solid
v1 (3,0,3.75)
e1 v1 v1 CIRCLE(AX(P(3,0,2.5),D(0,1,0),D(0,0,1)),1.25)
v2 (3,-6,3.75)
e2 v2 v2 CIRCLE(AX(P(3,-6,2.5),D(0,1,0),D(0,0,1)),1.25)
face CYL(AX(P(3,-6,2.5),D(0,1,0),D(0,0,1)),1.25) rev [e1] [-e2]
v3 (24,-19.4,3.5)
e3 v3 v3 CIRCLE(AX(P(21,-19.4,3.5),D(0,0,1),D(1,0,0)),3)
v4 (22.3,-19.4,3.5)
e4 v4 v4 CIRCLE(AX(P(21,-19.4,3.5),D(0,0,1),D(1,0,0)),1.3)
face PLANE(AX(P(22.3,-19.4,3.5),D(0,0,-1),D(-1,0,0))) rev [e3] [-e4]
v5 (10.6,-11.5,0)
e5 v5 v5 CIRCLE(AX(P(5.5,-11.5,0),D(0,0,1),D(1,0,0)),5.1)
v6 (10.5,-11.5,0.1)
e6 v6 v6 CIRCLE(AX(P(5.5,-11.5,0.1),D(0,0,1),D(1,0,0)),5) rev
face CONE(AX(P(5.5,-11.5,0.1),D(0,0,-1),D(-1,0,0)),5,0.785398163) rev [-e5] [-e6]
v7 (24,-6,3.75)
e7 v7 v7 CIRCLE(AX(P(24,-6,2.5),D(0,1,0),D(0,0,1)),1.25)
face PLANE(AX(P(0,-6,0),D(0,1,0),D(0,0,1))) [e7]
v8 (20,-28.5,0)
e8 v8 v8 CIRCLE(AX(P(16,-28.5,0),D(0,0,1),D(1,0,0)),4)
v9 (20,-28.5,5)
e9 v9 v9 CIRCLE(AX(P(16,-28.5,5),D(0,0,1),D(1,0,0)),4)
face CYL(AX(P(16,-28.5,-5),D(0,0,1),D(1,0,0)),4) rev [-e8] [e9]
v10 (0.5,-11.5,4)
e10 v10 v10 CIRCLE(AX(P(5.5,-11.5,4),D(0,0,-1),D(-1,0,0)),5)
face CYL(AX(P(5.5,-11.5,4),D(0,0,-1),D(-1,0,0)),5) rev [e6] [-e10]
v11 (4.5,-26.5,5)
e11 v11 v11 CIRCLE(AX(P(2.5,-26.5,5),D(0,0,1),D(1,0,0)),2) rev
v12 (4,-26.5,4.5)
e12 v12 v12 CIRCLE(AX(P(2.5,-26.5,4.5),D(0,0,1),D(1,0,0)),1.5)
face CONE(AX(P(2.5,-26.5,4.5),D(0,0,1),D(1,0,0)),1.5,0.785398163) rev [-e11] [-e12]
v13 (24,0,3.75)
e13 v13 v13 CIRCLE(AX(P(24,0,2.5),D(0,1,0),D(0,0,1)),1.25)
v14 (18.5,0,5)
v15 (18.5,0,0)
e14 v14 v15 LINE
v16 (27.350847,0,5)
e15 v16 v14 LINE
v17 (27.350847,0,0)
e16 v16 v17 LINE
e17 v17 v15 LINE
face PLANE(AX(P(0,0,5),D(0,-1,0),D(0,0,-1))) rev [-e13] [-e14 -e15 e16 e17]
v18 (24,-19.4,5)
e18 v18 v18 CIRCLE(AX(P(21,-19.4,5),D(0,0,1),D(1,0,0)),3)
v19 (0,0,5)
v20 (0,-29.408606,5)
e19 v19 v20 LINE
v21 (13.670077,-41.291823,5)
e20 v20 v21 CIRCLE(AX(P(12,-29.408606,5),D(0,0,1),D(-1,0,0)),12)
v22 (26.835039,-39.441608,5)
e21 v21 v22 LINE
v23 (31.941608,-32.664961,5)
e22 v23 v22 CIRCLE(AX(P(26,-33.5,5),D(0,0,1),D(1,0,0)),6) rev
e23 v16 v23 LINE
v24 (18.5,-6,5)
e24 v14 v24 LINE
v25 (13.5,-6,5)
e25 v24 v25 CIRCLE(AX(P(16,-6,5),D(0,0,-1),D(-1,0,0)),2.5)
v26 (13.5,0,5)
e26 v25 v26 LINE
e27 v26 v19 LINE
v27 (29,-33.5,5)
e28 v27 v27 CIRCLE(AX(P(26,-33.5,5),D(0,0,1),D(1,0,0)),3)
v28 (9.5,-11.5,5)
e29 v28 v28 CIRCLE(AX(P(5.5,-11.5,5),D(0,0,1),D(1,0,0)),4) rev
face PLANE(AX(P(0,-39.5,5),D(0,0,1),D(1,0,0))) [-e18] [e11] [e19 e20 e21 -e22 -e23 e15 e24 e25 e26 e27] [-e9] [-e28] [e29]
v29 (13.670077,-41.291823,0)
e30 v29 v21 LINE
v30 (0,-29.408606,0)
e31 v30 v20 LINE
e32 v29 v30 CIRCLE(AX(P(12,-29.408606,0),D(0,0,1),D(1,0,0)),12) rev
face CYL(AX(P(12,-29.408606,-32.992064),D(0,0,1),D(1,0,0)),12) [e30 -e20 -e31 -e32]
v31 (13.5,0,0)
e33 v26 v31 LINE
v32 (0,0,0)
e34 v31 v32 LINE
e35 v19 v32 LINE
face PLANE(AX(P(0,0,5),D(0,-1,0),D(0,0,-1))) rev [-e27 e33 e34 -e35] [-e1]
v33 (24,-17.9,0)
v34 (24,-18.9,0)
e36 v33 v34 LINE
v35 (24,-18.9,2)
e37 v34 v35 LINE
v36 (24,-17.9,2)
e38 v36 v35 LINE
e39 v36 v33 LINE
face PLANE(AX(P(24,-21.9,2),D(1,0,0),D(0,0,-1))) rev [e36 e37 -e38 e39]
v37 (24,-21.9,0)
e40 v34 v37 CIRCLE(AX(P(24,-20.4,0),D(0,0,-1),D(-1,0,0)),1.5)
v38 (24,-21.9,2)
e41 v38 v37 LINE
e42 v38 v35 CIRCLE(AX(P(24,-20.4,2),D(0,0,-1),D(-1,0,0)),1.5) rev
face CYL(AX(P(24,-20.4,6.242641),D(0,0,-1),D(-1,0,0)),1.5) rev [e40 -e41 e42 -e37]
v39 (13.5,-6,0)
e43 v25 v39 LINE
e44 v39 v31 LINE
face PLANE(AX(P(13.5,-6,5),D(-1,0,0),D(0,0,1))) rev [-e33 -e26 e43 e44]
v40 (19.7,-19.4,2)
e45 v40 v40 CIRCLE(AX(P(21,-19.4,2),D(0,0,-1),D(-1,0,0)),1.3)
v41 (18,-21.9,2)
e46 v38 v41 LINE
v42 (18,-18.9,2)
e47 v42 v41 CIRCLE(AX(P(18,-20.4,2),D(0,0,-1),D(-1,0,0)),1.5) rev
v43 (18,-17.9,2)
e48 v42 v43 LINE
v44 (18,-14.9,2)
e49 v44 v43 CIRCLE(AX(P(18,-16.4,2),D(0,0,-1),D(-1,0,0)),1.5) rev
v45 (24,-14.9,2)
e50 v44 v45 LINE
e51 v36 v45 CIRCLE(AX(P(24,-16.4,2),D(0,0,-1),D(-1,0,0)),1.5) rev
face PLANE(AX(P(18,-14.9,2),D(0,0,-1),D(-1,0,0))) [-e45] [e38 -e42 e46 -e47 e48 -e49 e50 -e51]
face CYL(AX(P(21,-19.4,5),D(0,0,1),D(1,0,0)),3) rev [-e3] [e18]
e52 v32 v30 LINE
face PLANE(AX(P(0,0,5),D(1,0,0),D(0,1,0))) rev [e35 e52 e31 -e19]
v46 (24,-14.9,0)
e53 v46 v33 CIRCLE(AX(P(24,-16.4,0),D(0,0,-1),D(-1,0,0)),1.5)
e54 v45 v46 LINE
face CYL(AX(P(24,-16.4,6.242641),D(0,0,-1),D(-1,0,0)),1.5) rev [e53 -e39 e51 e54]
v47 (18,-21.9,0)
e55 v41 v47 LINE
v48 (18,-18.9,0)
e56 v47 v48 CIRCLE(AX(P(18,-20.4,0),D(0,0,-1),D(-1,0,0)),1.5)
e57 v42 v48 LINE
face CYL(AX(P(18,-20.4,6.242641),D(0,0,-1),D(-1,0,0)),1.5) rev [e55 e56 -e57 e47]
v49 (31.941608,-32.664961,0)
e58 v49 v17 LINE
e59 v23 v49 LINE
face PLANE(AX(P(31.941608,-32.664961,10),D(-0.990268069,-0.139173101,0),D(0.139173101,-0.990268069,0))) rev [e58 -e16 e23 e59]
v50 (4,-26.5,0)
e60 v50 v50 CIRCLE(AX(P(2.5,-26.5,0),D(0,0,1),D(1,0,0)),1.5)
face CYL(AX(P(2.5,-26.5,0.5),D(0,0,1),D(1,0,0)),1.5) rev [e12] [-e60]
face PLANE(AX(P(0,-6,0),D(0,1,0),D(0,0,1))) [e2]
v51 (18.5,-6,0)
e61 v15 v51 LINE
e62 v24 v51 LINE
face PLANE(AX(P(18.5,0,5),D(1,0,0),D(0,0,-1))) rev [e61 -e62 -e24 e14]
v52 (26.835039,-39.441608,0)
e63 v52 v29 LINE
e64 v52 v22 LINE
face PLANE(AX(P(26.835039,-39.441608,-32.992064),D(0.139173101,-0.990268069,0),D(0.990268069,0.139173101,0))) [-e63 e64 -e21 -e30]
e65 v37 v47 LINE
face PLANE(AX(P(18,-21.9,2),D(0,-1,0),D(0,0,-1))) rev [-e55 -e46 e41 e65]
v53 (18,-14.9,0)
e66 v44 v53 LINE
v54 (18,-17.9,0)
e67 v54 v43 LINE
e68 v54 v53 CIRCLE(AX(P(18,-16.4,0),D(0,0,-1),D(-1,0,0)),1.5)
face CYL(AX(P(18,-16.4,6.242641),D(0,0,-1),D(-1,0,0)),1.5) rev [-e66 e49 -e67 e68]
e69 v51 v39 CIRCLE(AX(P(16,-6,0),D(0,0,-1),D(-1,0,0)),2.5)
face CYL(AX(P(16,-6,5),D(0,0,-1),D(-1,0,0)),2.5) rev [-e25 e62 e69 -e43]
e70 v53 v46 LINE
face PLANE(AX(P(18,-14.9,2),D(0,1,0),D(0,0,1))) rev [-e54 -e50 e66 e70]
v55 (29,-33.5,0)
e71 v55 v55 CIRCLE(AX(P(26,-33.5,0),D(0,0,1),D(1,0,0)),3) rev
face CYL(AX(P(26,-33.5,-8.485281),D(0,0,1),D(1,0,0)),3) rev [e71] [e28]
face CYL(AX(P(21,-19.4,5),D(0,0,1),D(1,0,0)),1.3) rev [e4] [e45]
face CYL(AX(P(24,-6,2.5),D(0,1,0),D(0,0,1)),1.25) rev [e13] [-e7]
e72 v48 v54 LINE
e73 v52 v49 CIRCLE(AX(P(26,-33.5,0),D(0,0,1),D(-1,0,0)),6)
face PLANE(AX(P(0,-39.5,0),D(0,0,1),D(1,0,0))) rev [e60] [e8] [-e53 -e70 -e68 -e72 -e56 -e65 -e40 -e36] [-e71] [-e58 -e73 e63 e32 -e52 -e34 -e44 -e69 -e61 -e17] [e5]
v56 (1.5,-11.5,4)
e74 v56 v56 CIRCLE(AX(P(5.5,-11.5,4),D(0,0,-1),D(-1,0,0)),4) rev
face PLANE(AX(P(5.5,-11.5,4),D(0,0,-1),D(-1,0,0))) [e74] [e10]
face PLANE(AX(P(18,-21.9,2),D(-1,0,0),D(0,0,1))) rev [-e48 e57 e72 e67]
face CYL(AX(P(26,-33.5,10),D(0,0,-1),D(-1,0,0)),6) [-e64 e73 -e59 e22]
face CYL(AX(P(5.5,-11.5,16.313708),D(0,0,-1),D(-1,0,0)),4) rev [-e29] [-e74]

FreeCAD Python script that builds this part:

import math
import FreeCAD as App
import Part
import Sketcher
from FreeCAD import Vector
Q = App.Units.Quantity


def edges_at(feature, points):
    """Names of the edges that pass closest to the given points."""
    edges = feature.Shape.Edges
    near = lambda p: min(range(len(edges)), key=lambda i: edges[i].distToShape(Part.Vertex(*p))[0])
    return sorted({f"Edge{near(p) + 1}" for p in points})

doc = App.newDocument("Part")
params = doc.addObject("Spreadsheet::Sheet", "Params")
for row, (alias, value) in enumerate([
    ("sketch1_width", "34 mm"),
    ("sketch1_height", "39.5 mm"),
    ("pad1_length", "5 mm"),
    ("fillet_radius", "12 mm"),
    ("sketch2_diameter", "6 mm"),
    ("pocket1_length", "5 mm"),
    ("sketch3_diameter", "8 mm"),
    ("pocket2_length", "5 mm"),
    ("sketch4_diameter", "10 mm"),
    ("pocket3_length", "4 mm"),
    ("sketch5_radius", "6 mm"),
    ("sketch5_width", "8 mm"),
    ("sketch5_height", "39.5 mm"),
    ("pocket4_length", "10 mm"),
    ("sketch6_radius", "6 mm"),
    ("sketch6_radius2", "12 mm"),
    ("pad2_length", "5 mm"),
    ("sketch7_diameter", "3 mm"),
    ("pocket5_length", "4.5 mm"),
    ("sketch8_diameter", "1 mm"),
    ("sketch9_height", "4 mm"),
    ("sketch9_radius", "2.25 mm"),
    ("pocket7_length", "0.5 mm"),
    ("sketch10_diameter", "8 mm"),
    ("pocket8_length", "10 mm"),
    ("sketch11_width", "6 mm"),
    ("sketch11_height", "7 mm"),
    ("pocket9_length", "2 mm"),
    ("sketch12_diameter", "2.6 mm"),
    ("hole_diameter", "2.6 mm"),
    ("hole_cbore_diameter", "6 mm"),
    ("hole_cbore_depth", "1.5 mm"),
    ("sketch13_diameter", "3 mm"),
    ("pocket10_length", "2 mm"),
    ("sketch14_radius", "2.5 mm"),
    ("sketch14_height", "6 mm"),
    ("sketch15_diameter", "3 mm"),
    ("pocket12_length", "10 mm"),
    ("chamfer_size", "0.1 mm"),
    ("sketch16_diameter", "3 mm"),
    ("sketch16_height", "4 mm"),
    ("sketch16_radius", "2.25 mm"),
    ("pad3_length", "5 mm"),
    ("chamfer2_size", "0.5 mm"),
    ("sketch17_diameter", "2.5 mm"),
    ("pocket13_length", "6 mm"),
], start=1):
    params.set(f"A{row}", alias)
    params.set(f"B{row}", "=" + value)
    params.setAlias(f"B{row}", alias)

body = doc.addObject("PartDesign::Body", "Body")

# Sketch on XY plane
sketch1 = body.newObject("Sketcher::SketchObject", "Sketch")
sketch1.AttachmentSupport = (doc.getObject("XY_Plane"), [""])
sketch1.MapMode = "FlatFace"
sketch1.addGeometry(Part.LineSegment(Vector(0, 0, 0), Vector(0, -39.5, 0)), False)
sketch1.addGeometry(Part.LineSegment(Vector(0, -39.5, 0), Vector(34, -39.5, 0)), False)
sketch1.addGeometry(Part.LineSegment(Vector(34, -39.5, 0), Vector(34, 0, 0)), False)
sketch1.addGeometry(Part.LineSegment(Vector(34, 0, 0), Vector(0, 0, 0)), False)
sketch1.addConstraint(Sketcher.Constraint("Coincident", 0, 2, 1, 1))
sketch1.addConstraint(Sketcher.Constraint("Coincident", 1, 2, 2, 1))
sketch1.addConstraint(Sketcher.Constraint("Coincident", 2, 2, 3, 1))
sketch1.addConstraint(Sketcher.Constraint("Coincident", 3, 2, 0, 1))
sketch1.addConstraint(Sketcher.Constraint("Vertical", 0))
sketch1.addConstraint(Sketcher.Constraint("Horizontal", 1))
sketch1.addConstraint(Sketcher.Constraint("Vertical", 2))
sketch1.addConstraint(Sketcher.Constraint("Horizontal", 3))
sketch1.addConstraint(Sketcher.Constraint("Coincident", 3, 2, -1, 1))
sketch1.addConstraint(Sketcher.Constraint("DistanceX", 1, 1, 1, 2, Q("34 mm")))
sketch1.addConstraint(Sketcher.Constraint("DistanceY", 0, 2, 0, 1, Q("39.5 mm")))
sketch1.setExpression("Constraints[9]", "Params.sketch1_width")
sketch1.setExpression("Constraints[10]", "Params.sketch1_height")
pad1 = body.newObject("PartDesign::Pad", "Pad")
pad1.Profile = sketch1
pad1.setExpression("Length", "Params.pad1_length")
doc.recompute()

fillet = body.newObject("PartDesign::Fillet", "Fillet")
fillet.Base = (pad1, edges_at(pad1, [(0, -39.5, 2.5)]))
fillet.setExpression("Radius", "Params.fillet_radius")

# Sketch on XY plane
sketch2 = body.newObject("Sketcher::SketchObject", "Sketch001")
sketch2.AttachmentSupport = (doc.getObject("XY_Plane"), [""])
sketch2.MapMode = "FlatFace"
sketch2.AttachmentOffset = App.Placement(Vector(0, 0, 5), App.Rotation())
sketch2.addGeometry(Part.Circle(Vector(26, -33.5, 0), Vector(0, 0, 1), 3), False)
sketch2.addConstraint(Sketcher.Constraint("Diameter", 0, Q("6 mm")))
sketch2.addConstraint(Sketcher.Constraint("DistanceX", -1, 1, 0, 3, Q("26 mm")))
sketch2.addConstraint(Sketcher.Constraint("DistanceY", 0, 3, -1, 1, Q("33.5 mm")))
sketch2.setExpression("Constraints[0]", "Params.sketch2_diameter")
pocket1 = body.newObject("PartDesign::Pocket", "Pocket")
pocket1.Profile = sketch2
pocket1.setExpression("Length", "Params.pocket1_length")

# Sketch on XY plane
sketch3 = body.newObject("Sketcher::SketchObject", "Sketch002")
sketch3.AttachmentSupport = (doc.getObject("XY_Plane"), [""])
sketch3.MapMode = "FlatFace"
sketch3.addGeometry(Part.Circle(Vector(5.5, -11.5, 0), Vector(0, 0, 1), 4), False)
sketch3.addConstraint(Sketcher.Constraint("Diameter", 0, Q("8 mm")))
sketch3.addConstraint(Sketcher.Constraint("DistanceX", -1, 1, 0, 3, Q("5.5 mm")))
sketch3.addConstraint(Sketcher.Constraint("DistanceY", 0, 3, -1, 1, Q("11.5 mm")))
sketch3.setExpression("Constraints[0]", "Params.sketch3_diameter")
pocket2 = body.newObject("PartDesign::Pocket", "Pocket001")
pocket2.Profile = sketch3
pocket2.setExpression("Length", "Params.pocket2_length")
pocket2.Reversed = True

# Sketch on XY plane
sketch4 = body.newObject("Sketcher::SketchObject", "Sketch003")
sketch4.AttachmentSupport = (doc.getObject("XY_Plane"), [""])
sketch4.MapMode = "FlatFace"
sketch4.addGeometry(Part.Circle(Vector(5.5, -11.5, 0), Vector(0, 0, 1), 5), False)
sketch4.addConstraint(Sketcher.Constraint("Diameter", 0, Q("10 mm")))
sketch4.addConstraint(Sketcher.Constraint("DistanceX", -1, 1, 0, 3, Q("5.5 mm")))
sketch4.addConstraint(Sketcher.Constraint("DistanceY", 0, 3, -1, 1, Q("11.5 mm")))
sketch4.setExpression("Constraints[0]", "Params.sketch4_diameter")
pocket3 = body.newObject("PartDesign::Pocket", "Pocket002")
pocket3.Profile = sketch4
pocket3.setExpression("Length", "Params.pocket3_length")
pocket3.Reversed = True

# Sketch on XY plane
sketch5 = body.newObject("Sketcher::SketchObject", "Sketch004")
sketch5.AttachmentSupport = (doc.getObject("XY_Plane"), [""])
sketch5.MapMode = "FlatFace"
sketch5.addGeometry(Part.LineSegment(Vector(34, -39.5, 0), Vector(26, -39.5, 0)), False)
sketch5.addGeometry(Part.ArcOfCircle(Part.Circle(Vector(26, -33.5, 0), Vector(0, 0, 1), 6), math.radians(-90), math.radians(8)), False)
sketch5.addGeometry(Part.LineSegment(Vector(31.941608, -32.664961, 0), Vector(27.350847, 0, 0)), False)
sketch5.addGeometry(Part.LineSegment(Vector(27.350847, 0, 0), Vector(34, 0, 0)), False)
sketch5.addGeometry(Part.LineSegment(Vector(34, 0, 0), Vector(34, -39.5, 0)), False)
sketch5.addConstraint(Sketcher.Constraint("Tangent", 0, 2, 1, 1))
sketch5.addConstraint(Sketcher.Constraint("Tangent", 1, 2, 2, 1))
sketch5.addConstraint(Sketcher.Constraint("Coincident", 2, 2, 3, 1))
sketch5.addConstraint(Sketcher.Constraint("Coincident", 3, 2, 4, 1))
sketch5.addConstraint(Sketcher.Constraint("Coincident", 4, 2, 0, 1))
sketch5.addConstraint(Sketcher.Constraint("Horizontal", 0))
sketch5.addConstraint(Sketcher.Constraint("Horizontal", 3))
sketch5.addConstraint(Sketcher.Constraint("Vertical", 4))
sketch5.addConstraint(Sketcher.Constraint("PointOnObject", 2, 2, -1))
sketch5.addConstraint(Sketcher.Constraint("Radius", 1, Q("6 mm")))
sketch5.addConstraint(Sketcher.Constraint("DistanceX", 0, 2, 0, 1, Q("8 mm")))
sketch5.addConstraint(Sketcher.Constraint("Angle", 2, Q("98 deg")))
sketch5.addConstraint(Sketcher.Constraint("DistanceY", 4, 2, 4, 1, Q("39.5 mm")))
sketch5.addConstraint(Sketcher.Constraint("DistanceX", -1, 1, 1, 3, Q("26 mm")))
sketch5.setExpression("Constraints[9]", "Params.sketch5_radius")
sketch5.setExpression("Constraints[10]", "Params.sketch5_width")
sketch5.setExpression("Constraints[12]", "Params.sketch5_height")
pocket4 = body.newObject("PartDesign::Pocket", "Pocket003")
pocket4.Profile = sketch5
pocket4.setExpression("Length", "Params.pocket4_length")
pocket4.Reversed = True

# Sketch on XY plane
sketch6 = body.newObject("Sketcher::SketchObject", "Sketch005")
sketch6.AttachmentSupport = (doc.getObject("XY_Plane"), [""])
sketch6.MapMode = "FlatFace"
sketch6.addGeometry(Part.LineSegment(Vector(13.670077, -41.291823, 0), Vector(26.835039, -39.441608, 0)), False)
sketch6.addGeometry(Part.ArcOfCircle(Part.Circle(Vector(26, -33.5, 0), Vector(0, 0, 1), 6), math.radians(-82), math.radians(-55)), False)
sketch6.addGeometry(Part.LineSegment(Vector(29.441459, -38.414912, 0), Vector(0, -26.519791, 0)), False)
sketch6.addGeometry(Part.LineSegment(Vector(0, -26.519791, 0), Vector(0, -29.408606, 0)), False)
sketch6.addGeometry(Part.ArcOfCircle(Part.Circle(Vector(12, -29.408606, 0), Vector(0, 0, 1), 12), math.radians(-180), math.radians(-82)), False)
sketch6.addConstraint(Sketcher.Constraint("Tangent", 0, 2, 1, 1))
sketch6.addConstraint(Sketcher.Constraint("Coincident", 1, 2, 2, 1))
sketch6.addConstraint(Sketcher.Constraint("Coincident", 2, 2, 3, 1))
sketch6.addConstraint(Sketcher.Constraint("Tangent", 3, 2, 4, 1))
sketch6.addConstraint(Sketcher.Constraint("Tangent", 4, 2, 0, 1))
sketch6.addConstraint(Sketcher.Constraint("Vertical", 3))
sketch6.addConstraint(Sketcher.Constraint("PointOnObject", 2, 2, -2))
sketch6.addConstraint(Sketcher.Constraint("Radius", 1, Q("6 mm")))
sketch6.addConstraint(Sketcher.Constraint("Radius", 4, Q("12 mm")))
sketch6.addConstraint(Sketcher.Constraint("Angle", 0, Q("8 deg")))
sketch6.addConstraint(Sketcher.Constraint("Angle", 2, Q("158 deg")))
sketch6.addConstraint(Sketcher.Constraint("DistanceX", -1, 1, 1, 3, Q("26 mm")))
sketch6.addConstraint(Sketcher.Constraint("DistanceY", 1, 3, -1, 1, Q("33.5 mm")))
sketch6.addConstraint(Sketcher.Constraint("DistanceY", 3, 2, 3, 1, Q("2.888815 mm")))
sketch6.setExpression("Constraints[7]", "Params.sketch6_radius")
sketch6.setExpression("Constraints[8]", "Params.sketch6_radius2")
pad2 = body.newObject("PartDesign::Pad", "Pad001")
pad2.Profile = sketch6
pad2.setExpression("Length", "Params.pad2_length")

# Sketch on XY plane
sketch7 = body.newObject("Sketcher::SketchObject", "Sketch006")
sketch7.AttachmentSupport = (doc.getObject("XY_Plane"), [""])
sketch7.MapMode = "FlatFace"
sketch7.AttachmentOffset = App.Placement(Vector(0, 0, 5), App.Rotation())
sketch7.addGeometry(Part.Circle(Vector(2.5, -26.5, 0), Vector(0, 0, 1), 1.5), False)
sketch7.addConstraint(Sketcher.Constraint("Diameter", 0, Q("3 mm")))
sketch7.addConstraint(Sketcher.Constraint("DistanceX", -1, 1, 0, 3, Q("2.5 mm")))
sketch7.addConstraint(Sketcher.Constraint("DistanceY", 0, 3, -1, 1, Q("26.5 mm")))
sketch7.setExpression("Constraints[0]", "Params.sketch7_diameter")
pocket5 = body.newObject("PartDesign::Pocket", "Pocket004")
pocket5.Profile = sketch7
pocket5.setExpression("Length", "Params.pocket5_length")

# Sketch on XY plane
sketch8 = body.newObject("Sketcher::SketchObject", "Sketch007")
sketch8.AttachmentSupport = (doc.getObject("XY_Plane"), [""])
sketch8.MapMode = "FlatFace"
sketch8.AttachmentOffset = App.Placement(Vector(0, 0, 0.5), App.Rotation())
sketch8.addGeometry(Part.Circle(Vector(1.5, -26.5, 0), Vector(0, 0, 1), 0.5), False)
sketch8.addConstraint(Sketcher.Constraint("Diameter", 0, Q("1 mm")))
sketch8.addConstraint(Sketcher.Constraint("DistanceX", -1, 1, 0, 3, Q("1.5 mm")))
sketch8.addConstraint(Sketcher.Constraint("DistanceY", 0, 3, -1, 1, Q("26.5 mm")))
sketch8.setExpression("Constraints[0]", "Params.sketch8_diameter")
pocket6 = body.newObject("PartDesign::Pocket", "Pocket005")
pocket6.Profile = sketch8
pocket6.Type = "ThroughAll"

# Sketch on XY plane
sketch9 = body.newObject("Sketcher::SketchObject", "Sketch008")
sketch9.AttachmentSupport = (doc.getObject("XY_Plane"), [""])
sketch9.MapMode = "FlatFace"
sketch9.AttachmentOffset = App.Placement(Vector(0, 0, 5), App.Rotation())
sketch9.addGeometry(Part.LineSegment(Vector(0.25, -22.5, 0), Vector(0.25, -26.5, 0)), False)
sketch9.addGeometry(Part.ArcOfCircle(Part.Circle(Vector(2.5, -26.5, 0), Vector(0, 0, 1), 2.25), math.radians(180), math.radians(360)), False)
sketch9.addGeometry(Part.LineSegment(Vector(4.75, -26.5, 0), Vector(4.75, -22.5, 0)), False)
sketch9.addGeometry(Part.ArcOfCircle(Part.Circle(Vector(2.5, -22.5, 0), Vector(0, 0, 1), 2.25), math.radians(0), math.radians(180)), False)
sketch9.addConstraint(Sketcher.Constraint("Tangent", 0, 2, 1, 1))
sketch9.addConstraint(Sketcher.Constraint("Tangent", 1, 2, 2, 1))
sketch9.addConstraint(Sketcher.Constraint("Tangent", 2, 2, 3, 1))
sketch9.addConstraint(Sketcher.Constraint("Tangent", 3, 2, 0, 1))
sketch9.addConstraint(Sketcher.Constraint("Vertical", 0))
sketch9.addConstraint(Sketcher.Constraint("Vertical", 2))
sketch9.addConstraint(Sketcher.Constraint("DistanceY", 0, 2, 0, 1, Q("4 mm")))
sketch9.addConstraint(Sketcher.Constraint("Radius", 1, Q("2.25 mm")))
sketch9.addConstraint(Sketcher.Constraint("DistanceX", -1, 1, 1, 3, Q("2.5 mm")))
sketch9.addConstraint(Sketcher.Constraint("DistanceY", 1, 3, -1, 1, Q("26.5 mm")))
sketch9.setExpression("Constraints[6]", "Params.sketch9_height")
sketch9.setExpression("Constraints[7]", "Params.sketch9_radius")
pocket7 = body.newObject("PartDesign::Pocket", "Pocket006")
pocket7.Profile = sketch9
pocket7.setExpression("Length", "Params.pocket7_length")

# Sketch on XY plane
sketch10 = body.newObject("Sketcher::SketchObject", "Sketch009")
sketch10.AttachmentSupport = (doc.getObject("XY_Plane"), [""])
sketch10.MapMode = "FlatFace"
sketch10.AttachmentOffset = App.Placement(Vector(0, 0, 5), App.Rotation())
sketch10.addGeometry(Part.Circle(Vector(16, -28.5, 0), Vector(0, 0, 1), 4), False)
sketch10.addConstraint(Sketcher.Constraint("Diameter", 0, Q("8 mm")))
sketch10.addConstraint(Sketcher.Constraint("DistanceX", -1, 1, 0, 3, Q("16 mm")))
sketch10.addConstraint(Sketcher.Constraint("DistanceY", 0, 3, -1, 1, Q("28.5 mm")))
sketch10.setExpression("Constraints[0]", "Params.sketch10_diameter")
pocket8 = body.newObject("PartDesign::Pocket", "Pocket007")
pocket8.Profile = sketch10
pocket8.setExpression("Length", "Params.pocket8_length")

# Sketch on XY plane
sketch11 = body.newObject("Sketcher::SketchObject", "Sketch010")
sketch11.AttachmentSupport = (doc.getObject("XY_Plane"), [""])
sketch11.MapMode = "FlatFace"
sketch11.addGeometry(Part.LineSegment(Vector(24, -14.9, 0), Vector(24, -21.9, 0)), False)
sketch11.addGeometry(Part.LineSegment(Vector(24, -21.9, 0), Vector(18, -21.9, 0)), False)
sketch11.addGeometry(Part.LineSegment(Vector(18, -21.9, 0), Vector(18, -14.9, 0)), False)
sketch11.addGeometry(Part.LineSegment(Vector(18, -14.9, 0), Vector(24, -14.9, 0)), False)
sketch11.addConstraint(Sketcher.Constraint("Coincident", 0, 2, 1, 1))
sketch11.addConstraint(Sketcher.Constraint("Coincident", 1, 2, 2, 1))
sketch11.addConstraint(Sketcher.Constraint("Coincident", 2, 2, 3, 1))
sketch11.addConstraint(Sketcher.Constraint("Coincident", 3, 2, 0, 1))
sketch11.addConstraint(Sketcher.Constraint("Vertical", 0))
sketch11.addConstraint(Sketcher.Constraint("Horizontal", 1))
sketch11.addConstraint(Sketcher.Constraint("Vertical", 2))
sketch11.addConstraint(Sketcher.Constraint("Horizontal", 3))
sketch11.addConstraint(Sketcher.Constraint("DistanceX", 1, 2, 1, 1, Q("6 mm")))
sketch11.addConstraint(Sketcher.Constraint("DistanceY", 0, 2, 0, 1, Q("7 mm")))
sketch11.addConstraint(Sketcher.Constraint("DistanceX", -1, 1, 0, 2, Q("24 mm")))
sketch11.addConstraint(Sketcher.Constraint("DistanceY", 0, 2, -1, 1, Q("21.9 mm")))
sketch11.setExpression("Constraints[8]", "Params.sketch11_width")
sketch11.setExpression("Constraints[9]", "Params.sketch11_height")
pocket9 = body.newObject("PartDesign::Pocket", "Pocket008")
pocket9.Profile = sketch11
pocket9.setExpression("Length", "Params.pocket9_length")
pocket9.Reversed = True

# Sketch on XY plane
sketch12 = body.newObject("Sketcher::SketchObject", "Sketch011")
sketch12.AttachmentSupport = (doc.getObject("XY_Plane"), [""])
sketch12.MapMode = "FlatFace"
sketch12.AttachmentOffset = App.Placement(Vector(0, 0, 5), App.Rotation())
sketch12.addGeometry(Part.Circle(Vector(21, -19.4, 0), Vector(0, 0, 1), 1.3), False)
sketch12.addConstraint(Sketcher.Constraint("Diameter", 0, Q("2.6 mm")))
sketch12.addConstraint(Sketcher.Constraint("DistanceX", -1, 1, 0, 3, Q("21 mm")))
sketch12.addConstraint(Sketcher.Constraint("DistanceY", 0, 3, -1, 1, Q("19.4 mm")))
sketch12.setExpression("Constraints[0]", "Params.sketch12_diameter")
doc.recompute()
hole = body.newObject("PartDesign::Hole", "Hole")
hole.Profile = sketch12
hole.ThreadType = "None"
hole.setExpression("Diameter", "Params.hole_diameter")
hole.DepthType = "ThroughAll"
hole.HoleCutType = "Counterbore"
hole.setExpression("HoleCutDiameter", "Params.hole_cbore_diameter")
hole.setExpression("HoleCutDepth", "Params.hole_cbore_depth")

# Sketch on XY plane
sketch13 = body.newObject("Sketcher::SketchObject", "Sketch012")
sketch13.AttachmentSupport = (doc.getObject("XY_Plane"), [""])
sketch13.MapMode = "FlatFace"
sketch13.addGeometry(Part.Circle(Vector(24, -16.4, 0), Vector(0, 0, 1), 1.5), False)
sketch13.addGeometry(Part.Circle(Vector(18, -16.4, 0), Vector(0, 0, 1), 1.5), False)
sketch13.addGeometry(Part.Circle(Vector(24, -20.4, 0), Vector(0, 0, 1), 1.5), False)
sketch13.addGeometry(Part.Circle(Vector(18, -20.4, 0), Vector(0, 0, 1), 1.5), False)
sketch13.addConstraint(Sketcher.Constraint("Equal", 0, 1))
sketch13.addConstraint(Sketcher.Constraint("Equal", 1, 2))
sketch13.addConstraint(Sketcher.Constraint("Equal", 2, 3))
sketch13.addConstraint(Sketcher.Constraint("Horizontal", 0, 3, 1, 3))
sketch13.addConstraint(Sketcher.Constraint("Horizontal", 2, 3, 3, 3))
sketch13.addConstraint(Sketcher.Constraint("Vertical", 0, 3, 2, 3))
sketch13.addConstraint(Sketcher.Constraint("Vertical", 1, 3, 3, 3))
sketch13.addConstraint(Sketcher.Constraint("Diameter", 0, Q("3 mm")))
sketch13.addConstraint(Sketcher.Constraint("DistanceX", -1, 1, 0, 3, Q("24 mm")))
sketch13.addConstraint(Sketcher.Constraint("DistanceX", -1, 1, 1, 3, Q("18 mm")))
sketch13.addConstraint(Sketcher.Constraint("DistanceY", 2, 3, 0, 3, Q("4 mm")))
sketch13.addConstraint(Sketcher.Constraint("DistanceY", 0, 3, -1, 1, Q("16.4 mm")))
sketch13.setExpression("Constraints[7]", "Params.sketch13_diameter")
pocket10 = body.newObject("PartDesign::Pocket", "Pocket009")
pocket10.Profile = sketch13
pocket10.setExpression("Length", "Params.pocket10_length")
pocket10.Reversed = True

# Sketch on XY plane
sketch14 = body.newObject("Sketcher::SketchObject", "Sketch013")
sketch14.AttachmentSupport = (doc.getObject("XY_Plane"), [""])
sketch14.MapMode = "FlatFace"
sketch14.addGeometry(Part.LineSegment(Vector(13.5, -6, 0), Vector(13.5, 0, 0)), False)
sketch14.addGeometry(Part.LineSegment(Vector(13.5, 0, 0), Vector(18.5, 0, 0)), False)
sketch14.addGeometry(Part.LineSegment(Vector(18.5, 0, 0), Vector(18.5, -6, 0)), False)
sketch14.addGeometry(Part.ArcOfCircle(Part.Circle(Vector(16, -6, 0), Vector(0, 0, 1), 2.5), math.radians(180), math.radians(360)), False)
sketch14.addConstraint(Sketcher.Constraint("Coincident", 0, 2, 1, 1))
sketch14.addConstraint(Sketcher.Constraint("Coincident", 1, 2, 2, 1))
sketch14.addConstraint(Sketcher.Constraint("Tangent", 2, 2, 3, 2))
sketch14.addConstraint(Sketcher.Constraint("Tangent", 3, 1, 0, 1))
sketch14.addConstraint(Sketcher.Constraint("Vertical", 0))
sketch14.addConstraint(Sketcher.Constraint("Horizontal", 1))
sketch14.addConstraint(Sketcher.Constraint("Vertical", 2))
sketch14.addConstraint(Sketcher.Constraint("PointOnObject", 0, 2, -1))
sketch14.addConstraint(Sketcher.Constraint("Radius", 3, Q("2.5 mm")))
sketch14.addConstraint(Sketcher.Constraint("DistanceY", 0, 1, 0, 2, Q("6 mm")))
sketch14.addConstraint(Sketcher.Constraint("DistanceX", -1, 1, 3, 3, Q("16 mm")))
sketch14.setExpression("Constraints[8]", "Params.sketch14_radius")
sketch14.setExpression("Constraints[9]", "Params.sketch14_height")
pocket11 = body.newObject("PartDesign::Pocket", "Pocket010")
pocket11.Profile = sketch14
pocket11.Type = "ThroughAll"
pocket11.Reversed = True

# Sketch on XY plane
sketch15 = body.newObject("Sketcher::SketchObject", "Sketch014")
sketch15.AttachmentSupport = (doc.getObject("XY_Plane"), [""])
sketch15.MapMode = "FlatFace"
sketch15.AttachmentOffset = App.Placement(Vector(0, 0, 4.5), App.Rotation())
sketch15.addGeometry(Part.Circle(Vector(2.5, -26.5, 0), Vector(0, 0, 1), 1.5), False)
sketch15.addConstraint(Sketcher.Constraint("Diameter", 0, Q("3 mm")))
sketch15.addConstraint(Sketcher.Constraint("DistanceX", -1, 1, 0, 3, Q("2.5 mm")))
sketch15.addConstraint(Sketcher.Constraint("DistanceY", 0, 3, -1, 1, Q("26.5 mm")))
sketch15.setExpression("Constraints[0]", "Params.sketch15_diameter")
pocket12 = body.newObject("PartDesign::Pocket", "Pocket011")
pocket12.Profile = sketch15
pocket12.setExpression("Length", "Params.pocket12_length")
doc.recompute()

chamfer = body.newObject("PartDesign::Chamfer", "Chamfer")
chamfer.Base = (pocket12, edges_at(pocket12, [(10.5, -11.5, 0)]))
chamfer.setExpression("Size", "Params.chamfer_size")

# Sketch on XY plane
sketch16 = body.newObject("Sketcher::SketchObject", "Sketch015")
sketch16.AttachmentSupport = (doc.getObject("XY_Plane"), [""])
sketch16.MapMode = "FlatFace"
sketch16.AttachmentOffset = App.Placement(Vector(0, 0, 5), App.Rotation())
sketch16.addGeometry(Part.LineSegment(Vector(4.75, -26.5, 0), Vector(4.75, -22.5, 0)), False)
sketch16.addGeometry(Part.ArcOfCircle(Part.Circle(Vector(2.5, -22.5, 0), Vector(0, 0, 1), 2.25), math.radians(0), math.radians(180)), False)
sketch16.addGeometry(Part.LineSegment(Vector(0.25, -22.5, 0), Vector(0.25, -26.5, 0)), False)
sketch16.addGeometry(Part.ArcOfCircle(Part.Circle(Vector(2.5, -26.5, 0), Vector(0, 0, 1), 2.25), math.radians(180), math.radians(360)), False)
sketch16.addGeometry(Part.Circle(Vector(2.5, -26.5, 0), Vector(0, 0, 1), 1.5), False)
sketch16.addConstraint(Sketcher.Constraint("Tangent", 0, 2, 1, 1))
sketch16.addConstraint(Sketcher.Constraint("Tangent", 1, 2, 2, 1))
sketch16.addConstraint(Sketcher.Constraint("Tangent", 2, 2, 3, 1))
sketch16.addConstraint(Sketcher.Constraint("Tangent", 3, 2, 0, 1))
sketch16.addConstraint(Sketcher.Constraint("Vertical", 0))
sketch16.addConstraint(Sketcher.Constraint("Vertical", 2))
sketch16.addConstraint(Sketcher.Constraint("Coincident", 4, 3, 3, 3))
sketch16.addConstraint(Sketcher.Constraint("Diameter", 4, Q("3 mm")))
sketch16.addConstraint(Sketcher.Constraint("DistanceY", 0, 1, 0, 2, Q("4 mm")))
sketch16.addConstraint(Sketcher.Constraint("Radius", 1, Q("2.25 mm")))
sketch16.addConstraint(Sketcher.Constraint("DistanceX", -1, 1, 1, 3, Q("2.5 mm")))
sketch16.addConstraint(Sketcher.Constraint("DistanceY", 1, 3, -1, 1, Q("22.5 mm")))
sketch16.setExpression("Constraints[7]", "Params.sketch16_diameter")
sketch16.setExpression("Constraints[8]", "Params.sketch16_height")
sketch16.setExpression("Constraints[9]", "Params.sketch16_radius")
pad3 = body.newObject("PartDesign::Pad", "Pad002")
pad3.Profile = sketch16
pad3.setExpression("Length", "Params.pad3_length")
pad3.Reversed = True
doc.recompute()

chamfer2 = body.newObject("PartDesign::Chamfer", "Chamfer001")
chamfer2.Base = (pad3, edges_at(pad3, [(1, -26.5, 5)]))
chamfer2.setExpression("Size", "Params.chamfer2_size")

# Sketch on XZ plane
sketch17 = body.newObject("Sketcher::SketchObject", "Sketch016")
sketch17.AttachmentSupport = (doc.getObject("XZ_Plane"), [""])
sketch17.MapMode = "FlatFace"
sketch17.addGeometry(Part.Circle(Vector(24, 2.5, 0), Vector(0, 0, 1), 1.25), False)
sketch17.addGeometry(Part.Circle(Vector(3, 2.5, 0), Vector(0, 0, 1), 1.25), False)
sketch17.addConstraint(Sketcher.Constraint("Equal", 0, 1))
sketch17.addConstraint(Sketcher.Constraint("Horizontal", 0, 3, 1, 3))
sketch17.addConstraint(Sketcher.Constraint("Diameter", 0, Q("2.5 mm")))
sketch17.addConstraint(Sketcher.Constraint("DistanceX", -1, 1, 0, 3, Q("24 mm")))
sketch17.addConstraint(Sketcher.Constraint("DistanceX", -1, 1, 1, 3, Q("3 mm")))
sketch17.addConstraint(Sketcher.Constraint("DistanceY", -1, 1, 0, 3, Q("2.5 mm")))
sketch17.setExpression("Constraints[2]", "Params.sketch17_diameter")
pocket13 = body.newObject("PartDesign::Pocket", "Pocket012")
pocket13.Profile = sketch17
pocket13.setExpression("Length", "Params.pocket13_length")
pocket13.Reversed = True

doc.recompute()
